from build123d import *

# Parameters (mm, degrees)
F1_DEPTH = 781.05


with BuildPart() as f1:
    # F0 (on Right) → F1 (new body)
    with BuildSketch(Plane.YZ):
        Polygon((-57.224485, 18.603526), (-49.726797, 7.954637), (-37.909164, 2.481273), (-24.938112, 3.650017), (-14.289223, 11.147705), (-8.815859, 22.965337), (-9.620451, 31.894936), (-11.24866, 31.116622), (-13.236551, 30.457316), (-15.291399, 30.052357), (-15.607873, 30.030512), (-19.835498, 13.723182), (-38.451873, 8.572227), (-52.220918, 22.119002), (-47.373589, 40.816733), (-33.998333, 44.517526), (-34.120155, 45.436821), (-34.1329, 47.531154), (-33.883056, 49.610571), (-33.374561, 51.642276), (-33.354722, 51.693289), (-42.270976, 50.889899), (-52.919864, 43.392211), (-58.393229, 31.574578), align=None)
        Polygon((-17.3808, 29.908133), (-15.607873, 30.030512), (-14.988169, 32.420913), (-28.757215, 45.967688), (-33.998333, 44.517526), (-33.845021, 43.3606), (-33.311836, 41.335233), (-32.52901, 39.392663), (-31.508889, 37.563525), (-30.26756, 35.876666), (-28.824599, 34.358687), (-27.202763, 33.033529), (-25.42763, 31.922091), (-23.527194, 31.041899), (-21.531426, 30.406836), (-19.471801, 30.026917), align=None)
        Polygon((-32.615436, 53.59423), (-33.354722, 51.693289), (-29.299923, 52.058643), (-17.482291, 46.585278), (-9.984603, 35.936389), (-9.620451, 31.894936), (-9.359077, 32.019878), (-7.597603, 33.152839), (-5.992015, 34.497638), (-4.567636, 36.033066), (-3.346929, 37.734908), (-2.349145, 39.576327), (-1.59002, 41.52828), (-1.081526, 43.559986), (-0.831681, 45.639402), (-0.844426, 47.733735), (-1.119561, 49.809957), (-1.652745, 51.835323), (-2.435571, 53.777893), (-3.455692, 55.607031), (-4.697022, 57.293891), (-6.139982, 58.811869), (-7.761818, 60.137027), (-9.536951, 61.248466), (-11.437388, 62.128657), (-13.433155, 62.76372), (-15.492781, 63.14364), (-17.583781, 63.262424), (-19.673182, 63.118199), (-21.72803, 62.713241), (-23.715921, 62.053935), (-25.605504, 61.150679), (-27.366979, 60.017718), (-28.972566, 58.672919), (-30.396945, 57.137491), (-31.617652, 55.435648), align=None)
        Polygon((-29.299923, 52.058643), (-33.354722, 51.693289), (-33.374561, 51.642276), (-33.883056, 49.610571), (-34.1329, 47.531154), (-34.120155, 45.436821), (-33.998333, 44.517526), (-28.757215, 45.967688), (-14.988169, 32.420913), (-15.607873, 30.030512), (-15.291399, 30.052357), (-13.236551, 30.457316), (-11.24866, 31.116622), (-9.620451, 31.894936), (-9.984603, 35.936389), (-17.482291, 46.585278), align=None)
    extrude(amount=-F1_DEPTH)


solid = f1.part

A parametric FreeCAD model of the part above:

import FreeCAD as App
import Part
import Sketcher
from FreeCAD import Vector
Q = App.Units.Quantity

doc = App.newDocument("Part")
body = doc.addObject("PartDesign::Body", "Body")

sketch1 = doc.addObject("Sketcher::SketchObject", "Sketch")
body.addObject(sketch1)
sketch1.AttachmentSupport = (doc.YZ_Plane, [""])
sketch1.MapMode = "FlatFace"
sketch1.addGeometry([
    Part.LineSegment(Vector(-57.224485, 18.603526, 0), Vector(-49.726797, 7.954637, 0)),
    Part.LineSegment(Vector(-49.726797, 7.954637, 0), Vector(-37.909164, 2.481273, 0)),
    Part.LineSegment(Vector(-37.909164, 2.481273, 0), Vector(-24.938112, 3.650017, 0)),
    Part.LineSegment(Vector(-24.938112, 3.650017, 0), Vector(-14.289223, 11.147705, 0)),
    Part.LineSegment(Vector(-14.289223, 11.147705, 0), Vector(-8.815859, 22.965337, 0)),
    Part.LineSegment(Vector(-8.815859, 22.965337, 0), Vector(-9.620451, 31.894936, 0)),
    Part.LineSegment(Vector(-9.620451, 31.894936, 0), Vector(-9.359077, 32.019878, 0)),
    Part.LineSegment(Vector(-9.359077, 32.019878, 0), Vector(-7.597603, 33.152839, 0)),
    Part.LineSegment(Vector(-7.597603, 33.152839, 0), Vector(-5.992015, 34.497638, 0)),
    Part.LineSegment(Vector(-5.992015, 34.497638, 0), Vector(-4.567636, 36.033066, 0)),
    Part.LineSegment(Vector(-4.567636, 36.033066, 0), Vector(-3.346929, 37.734908, 0)),
    Part.LineSegment(Vector(-3.346929, 37.734908, 0), Vector(-2.349145, 39.576327, 0)),
    Part.LineSegment(Vector(-2.349145, 39.576327, 0), Vector(-1.59002, 41.52828, 0)),
    Part.LineSegment(Vector(-1.59002, 41.52828, 0), Vector(-1.081526, 43.559986, 0)),
    Part.LineSegment(Vector(-1.081526, 43.559986, 0), Vector(-0.831681, 45.639402, 0)),
    Part.LineSegment(Vector(-0.831681, 45.639402, 0), Vector(-0.844426, 47.733735, 0)),
    Part.LineSegment(Vector(-0.844426, 47.733735, 0), Vector(-1.119561, 49.809957, 0)),
    Part.LineSegment(Vector(-1.119561, 49.809957, 0), Vector(-1.652745, 51.835323, 0)),
    Part.LineSegment(Vector(-1.652745, 51.835323, 0), Vector(-2.435571, 53.777893, 0)),
    Part.LineSegment(Vector(-2.435571, 53.777893, 0), Vector(-3.455692, 55.607031, 0)),
    Part.LineSegment(Vector(-3.455692, 55.607031, 0), Vector(-4.697022, 57.293891, 0)),
    Part.LineSegment(Vector(-4.697022, 57.293891, 0), Vector(-6.139982, 58.811869, 0)),
    Part.LineSegment(Vector(-6.139982, 58.811869, 0), Vector(-7.761818, 60.137027, 0)),
    Part.LineSegment(Vector(-7.761818, 60.137027, 0), Vector(-9.536951, 61.248466, 0)),
    Part.LineSegment(Vector(-9.536951, 61.248466, 0), Vector(-11.437388, 62.128657, 0)),
    Part.LineSegment(Vector(-11.437388, 62.128657, 0), Vector(-13.433155, 62.76372, 0)),
    Part.LineSegment(Vector(-13.433155, 62.76372, 0), Vector(-15.492781, 63.14364, 0)),
    Part.LineSegment(Vector(-15.492781, 63.14364, 0), Vector(-17.583781, 63.262424, 0)),
    Part.LineSegment(Vector(-17.583781, 63.262424, 0), Vector(-19.673182, 63.118199, 0)),
    Part.LineSegment(Vector(-19.673182, 63.118199, 0), Vector(-21.72803, 62.713241, 0)),
    Part.LineSegment(Vector(-21.72803, 62.713241, 0), Vector(-23.715921, 62.053935, 0)),
    Part.LineSegment(Vector(-23.715921, 62.053935, 0), Vector(-25.605504, 61.150679, 0)),
    Part.LineSegment(Vector(-25.605504, 61.150679, 0), Vector(-27.366979, 60.017718, 0)),
    Part.LineSegment(Vector(-27.366979, 60.017718, 0), Vector(-28.972566, 58.672919, 0)),
    Part.LineSegment(Vector(-28.972566, 58.672919, 0), Vector(-30.396945, 57.137491, 0)),
    Part.LineSegment(Vector(-30.396945, 57.137491, 0), Vector(-31.617652, 55.435648, 0)),
    Part.LineSegment(Vector(-31.617652, 55.435648, 0), Vector(-32.615436, 53.59423, 0)),
    Part.LineSegment(Vector(-32.615436, 53.59423, 0), Vector(-33.354722, 51.693289, 0)),
    Part.LineSegment(Vector(-33.354722, 51.693289, 0), Vector(-42.270976, 50.889899, 0)),
    Part.LineSegment(Vector(-42.270976, 50.889899, 0), Vector(-52.919864, 43.392211, 0)),
    Part.LineSegment(Vector(-52.919864, 43.392211, 0), Vector(-58.393229, 31.574578, 0)),
    Part.LineSegment(Vector(-58.393229, 31.574578, 0), Vector(-57.224485, 18.603526, 0)),
    Part.LineSegment(Vector(-15.607873, 30.030512, 0), Vector(-19.835498, 13.723182, 0)),
    Part.LineSegment(Vector(-19.835498, 13.723182, 0), Vector(-38.451873, 8.572227, 0)),
    Part.LineSegment(Vector(-38.451873, 8.572227, 0), Vector(-52.220918, 22.119002, 0)),
    Part.LineSegment(Vector(-52.220918, 22.119002, 0), Vector(-47.373589, 40.816733, 0)),
    Part.LineSegment(Vector(-47.373589, 40.816733, 0), Vector(-33.998333, 44.517526, 0)),
    Part.LineSegment(Vector(-33.998333, 44.517526, 0), Vector(-33.845021, 43.3606, 0)),
    Part.LineSegment(Vector(-33.845021, 43.3606, 0), Vector(-33.311836, 41.335233, 0)),
    Part.LineSegment(Vector(-33.311836, 41.335233, 0), Vector(-32.52901, 39.392663, 0)),
    Part.LineSegment(Vector(-32.52901, 39.392663, 0), Vector(-31.508889, 37.563525, 0)),
    Part.LineSegment(Vector(-31.508889, 37.563525, 0), Vector(-30.26756, 35.876666, 0)),
    Part.LineSegment(Vector(-30.26756, 35.876666, 0), Vector(-28.824599, 34.358687, 0)),
    Part.LineSegment(Vector(-28.824599, 34.358687, 0), Vector(-27.202763, 33.033529, 0)),
    Part.LineSegment(Vector(-27.202763, 33.033529, 0), Vector(-25.42763, 31.922091, 0)),
    Part.LineSegment(Vector(-25.42763, 31.922091, 0), Vector(-23.527194, 31.041899, 0)),
    Part.LineSegment(Vector(-23.527194, 31.041899, 0), Vector(-21.531426, 30.406836, 0)),
    Part.LineSegment(Vector(-21.531426, 30.406836, 0), Vector(-19.471801, 30.026917, 0)),
    Part.LineSegment(Vector(-19.471801, 30.026917, 0), Vector(-17.3808, 29.908133, 0)),
    Part.LineSegment(Vector(-17.3808, 29.908133, 0), Vector(-15.607873, 30.030512, 0)),
], False)
sketch1.addConstraint([
    Sketcher.Constraint("Coincident", 0, 2, 1, 1),
    Sketcher.Constraint("Coincident", 1, 2, 2, 1),
    Sketcher.Constraint("Coincident", 2, 2, 3, 1),
    Sketcher.Constraint("Coincident", 3, 2, 4, 1),
    Sketcher.Constraint("Coincident", 4, 2, 5, 1),
    Sketcher.Constraint("Coincident", 5, 2, 6, 1),
    Sketcher.Constraint("Coincident", 6, 2, 7, 1),
    Sketcher.Constraint("Coincident", 7, 2, 8, 1),
    Sketcher.Constraint("Coincident", 8, 2, 9, 1),
    Sketcher.Constraint("Coincident", 9, 2, 10, 1),
    Sketcher.Constraint("Coincident", 10, 2, 11, 1),
    Sketcher.Constraint("Coincident", 11, 2, 12, 1),
    Sketcher.Constraint("Coincident", 12, 2, 13, 1),
    Sketcher.Constraint("Coincident", 13, 2, 14, 1),
    Sketcher.Constraint("Coincident", 14, 2, 15, 1),
    Sketcher.Constraint("Coincident", 15, 2, 16, 1),
    Sketcher.Constraint("Coincident", 16, 2, 17, 1),
    Sketcher.Constraint("Coincident", 17, 2, 18, 1),
    Sketcher.Constraint("Coincident", 18, 2, 19, 1),
    Sketcher.Constraint("Coincident", 19, 2, 20, 1),
    Sketcher.Constraint("Coincident", 20, 2, 21, 1),
    Sketcher.Constraint("Coincident", 21, 2, 22, 1),
    Sketcher.Constraint("Coincident", 22, 2, 23, 1),
    Sketcher.Constraint("Coincident", 23, 2, 24, 1),
    Sketcher.Constraint("Coincident", 24, 2, 25, 1),
    Sketcher.Constraint("Coincident", 25, 2, 26, 1),
    Sketcher.Constraint("Coincident", 26, 2, 27, 1),
    Sketcher.Constraint("Coincident", 27, 2, 28, 1),
    Sketcher.Constraint("Coincident", 28, 2, 29, 1),
    Sketcher.Constraint("Coincident", 29, 2, 30, 1),
    Sketcher.Constraint("Coincident", 30, 2, 31, 1),
    Sketcher.Constraint("Coincident", 31, 2, 32, 1),
    Sketcher.Constraint("Coincident", 32, 2, 33, 1),
    Sketcher.Constraint("Coincident", 33, 2, 34, 1),
    Sketcher.Constraint("Coincident", 34, 2, 35, 1),
    Sketcher.Constraint("Coincident", 35, 2, 36, 1),
    Sketcher.Constraint("Coincident", 36, 2, 37, 1),
    Sketcher.Constraint("Coincident", 37, 2, 38, 1),
    Sketcher.Constraint("Coincident", 38, 2, 39, 1),
    Sketcher.Constraint("Coincident", 39, 2, 40, 1),
    Sketcher.Constraint("Coincident", 40, 2, 41, 1),
    Sketcher.Constraint("Coincident", 41, 2, 0, 1),
    Sketcher.Constraint("Coincident", 42, 2, 43, 1),
    Sketcher.Constraint("Coincident", 43, 2, 44, 1),
    Sketcher.Constraint("Coincident", 44, 2, 45, 1),
    Sketcher.Constraint("Coincident", 45, 2, 46, 1),
    Sketcher.Constraint("Coincident", 46, 2, 47, 1),
    Sketcher.Constraint("Coincident", 47, 2, 48, 1),
    Sketcher.Constraint("Coincident", 48, 2, 49, 1),
    Sketcher.Constraint("Coincident", 49, 2, 50, 1),
    Sketcher.Constraint("Coincident", 50, 2, 51, 1),
    Sketcher.Constraint("Coincident", 51, 2, 52, 1),
    Sketcher.Constraint("Coincident", 52, 2, 53, 1),
    Sketcher.Constraint("Coincident", 53, 2, 54, 1),
    Sketcher.Constraint("Coincident", 54, 2, 55, 1),
    Sketcher.Constraint("Coincident", 55, 2, 56, 1),
    Sketcher.Constraint("Coincident", 56, 2, 57, 1),
    Sketcher.Constraint("Coincident", 57, 2, 58, 1),
    Sketcher.Constraint("Coincident", 58, 2, 59, 1),
    Sketcher.Constraint("Coincident", 59, 2, 42, 1),
    Sketcher.Constraint("DistanceY", 30, 2, 28, 2, Q("0.0419002 in")),
    Sketcher.Constraint("Distance", 0, Q("13.0236 mm")),
    Sketcher.Constraint("Distance", 1, Q("13.0236 mm")),
    Sketcher.Constraint("Distance", 2, Q("13.0236 mm")),
    Sketcher.Constraint("Distance", 3, Q("13.0236 mm")),
    Sketcher.Constraint("Distance", 4, Q("13.023599 mm")),
    Sketcher.Constraint("Distance", 6, Q("0.289701 mm")),
    Sketcher.Constraint("Distance", 39, Q("13.023599 mm")),
    Sketcher.Constraint("Distance", 40, Q("13.023601 mm")),
    Sketcher.Constraint("Distance", 41, Q("13.0236 mm")),
    Sketcher.Constraint("Distance", 46, Q("13.8778 mm")),
    Sketcher.Constraint("DistanceY", -1, 1, 14, 2, Q("45.639402 mm")),
    Sketcher.Constraint("DistanceY", -1, 1, 28, 2, Q("63.118199 mm")),
    Sketcher.Constraint("DistanceY", -1, 1, 38, 2, Q("50.889899 mm")),
    Sketcher.Constraint("DistanceX", 42, 2, -1, 1, Q("19.835498 mm")),
    Sketcher.Constraint("DistanceY", -1, 1, 44, 2, Q("22.119002 mm")),
    Sketcher.Constraint("DistanceY", -1, 1, 47, 2, Q("43.3606 mm")),
    Sketcher.Constraint("DistanceX", 52, 2, -1, 1, Q("28.824599 mm")),
    Sketcher.Constraint("DistanceY", -1, 1, 55, 2, Q("31.041899 mm")),
    Sketcher.Constraint("DistanceX", 57, 2, -1, 1, Q("19.471801 mm")),
    Sketcher.Constraint("DistanceX", 58, 2, -1, 1, Q("17.3808 mm")),
    Sketcher.Constraint("DistanceY", 0, 2, 4, 2, Q("15.0107 mm")),
    Sketcher.Constraint("DistanceY", 4, 2, 5, 2, Q("8.929599 mm")),
    Sketcher.Constraint("DistanceY", 4, 2, 7, 2, Q("10.187502 mm")),
    Sketcher.Constraint("DistanceY", 7, 2, 8, 2, Q("1.344799 mm")),
    Sketcher.Constraint("DistanceX", 13, 2, 15, 2, Q("0.2371 mm")),
    Sketcher.Constraint("DistanceY", 18, 2, 20, 2, Q("3.515998 mm")),
    Sketcher.Constraint("DistanceX", 26, 2, 21, 2, Q("9.352799 mm")),
    Sketcher.Constraint("DistanceX", 27, 2, 26, 2, Q("2.091 mm")),
    Sketcher.Constraint("DistanceX", 28, 2, 27, 2, Q("2.089401 mm")),
    Sketcher.Constraint("DistanceY", 29, 2, 26, 2, Q("0.430399 mm")),
    Sketcher.Constraint("DistanceX", 32, 2, 27, 2, Q("9.783198 mm")),
    Sketcher.Constraint("DistanceY", 33, 2, 32, 2, Q("1.344799 mm")),
    Sketcher.Constraint("DistanceY", 37, 2, 34, 2, Q("5.444202 mm")),
    Sketcher.Constraint("DistanceY", 43, 2, 41, 2, Q("10.031299 mm")),
    Sketcher.Constraint("DistanceX", 47, 2, 37, 2, Q("0.490299 mm")),
    Sketcher.Constraint("DistanceX", 48, 2, 36, 2, Q("0.6964 mm")),
    Sketcher.Constraint("DistanceY", 50, 2, 46, 2, Q("6.954001 mm")),
    Sketcher.Constraint("Distance", 7, Q("2.094371 mm")),
    Sketcher.Constraint("Distance", 10, Q("2.094371 mm")),
    Sketcher.Constraint("Distance", 12, Q("2.094371 mm")),
    Sketcher.Constraint("Distance", 14, Q("2.094372 mm")),
    Sketcher.Constraint("Distance", 15, Q("2.094372 mm")),
    Sketcher.Constraint("Distance", 17, Q("2.094372 mm")),
    Sketcher.Constraint("Distance", 19, Q("2.094372 mm")),
    Sketcher.Constraint("Distance", 21, Q("2.094371 mm")),
    Sketcher.Constraint("Distance", 23, Q("2.094372 mm")),
    Sketcher.Constraint("Distance", 25, Q("2.094371 mm")),
    Sketcher.Constraint("Distance", 27, Q("2.094371 mm")),
    Sketcher.Constraint("Distance", 29, Q("2.094371 mm")),
    Sketcher.Constraint("Distance", 33, Q("2.094372 mm")),
    Sketcher.Constraint("Distance", 36, Q("2.094372 mm")),
    Sketcher.Constraint("Distance", 42, Q("16.846419 mm")),
    Sketcher.Constraint("Distance", 44, Q("19.315841 mm")),
    Sketcher.Constraint("Distance", 45, Q("19.315842 mm")),
    Sketcher.Constraint("Distance", 47, Q("1.16704 mm")),
    Sketcher.Constraint("Distance", 50, Q("2.094372 mm")),
    Sketcher.Constraint("Distance", 51, Q("2.094371 mm")),
    Sketcher.Constraint("Distance", 54, Q("2.094371 mm")),
    Sketcher.Constraint("Distance", 57, Q("2.094372 mm")),
    Sketcher.Constraint("DistanceX", 2, 2, -1, 1, Q("24.938112 mm")),
    Sketcher.Constraint("DistanceX", 4, 2, -1, 1, Q("8.815859 mm")),
    Sketcher.Constraint("DistanceX", 5, 2, -1, 1, Q("9.620451 mm")),
    Sketcher.Constraint("DistanceY", -1, 1, 7, 2, Q("33.152839 mm")),
    Sketcher.Constraint("DistanceX", 10, 2, -1, 1, Q("3.346929 mm")),
    Sketcher.Constraint("DistanceX", 12, 2, -1, 1, Q("1.59002 mm")),
    Sketcher.Constraint("DistanceY", -1, 1, 12, 2, Q("41.52828 mm")),
    Sketcher.Constraint("DistanceX", 14, 2, -1, 1, Q("0.831681 mm")),
    Sketcher.Constraint("DistanceX", 16, 2, -1, 1, Q("1.119561 mm")),
    Sketcher.Constraint("DistanceX", 18, 2, -1, 1, Q("2.435571 mm")),
    Sketcher.Constraint("DistanceX", 19, 2, -1, 1, Q("3.455692 mm")),
    Sketcher.Constraint("DistanceY", -1, 1, 19, 2, Q("55.607031 mm")),
    Sketcher.Constraint("DistanceX", 20, 2, -1, 1, Q("4.697022 mm")),
    Sketcher.Constraint("DistanceX", 21, 2, -1, 1, Q("6.139982 mm")),
    Sketcher.Constraint("DistanceX", 23, 2, -1, 1, Q("9.536951 mm")),
    Sketcher.Constraint("DistanceY", -1, 1, 25, 2, Q("62.76372 mm")),
    Sketcher.Constraint("DistanceY", -1, 1, 26, 2, Q("63.14364 mm")),
    Sketcher.Constraint("DistanceX", 30, 2, -1, 1, Q("23.715921 mm")),
    Sketcher.Constraint("DistanceY", -1, 1, 31, 2, Q("61.150679 mm")),
    Sketcher.Constraint("DistanceY", -1, 1, 32, 2, Q("60.017718 mm")),
    Sketcher.Constraint("DistanceY", -1, 1, 34, 2, Q("57.137491 mm")),
    Sketcher.Constraint("DistanceX", 35, 2, -1, 1, Q("31.617652 mm")),
    Sketcher.Constraint("DistanceY", -1, 1, 36, 2, Q("53.59423 mm")),
    Sketcher.Constraint("DistanceY", -1, 1, 39, 2, Q("43.392211 mm")),
    Sketcher.Constraint("DistanceX", 40, 2, -1, 1, Q("58.393229 mm")),
    Sketcher.Constraint("DistanceX", 45, 2, -1, 1, Q("47.373589 mm")),
    Sketcher.Constraint("DistanceX", 47, 2, -1, 1, Q("33.845021 mm")),
    Sketcher.Constraint("DistanceX", 49, 2, -1, 1, Q("32.52901 mm")),
    Sketcher.Constraint("DistanceX", 50, 2, -1, 1, Q("31.508889 mm")),
    Sketcher.Constraint("DistanceX", 51, 2, -1, 1, Q("30.26756 mm")),
    Sketcher.Constraint("DistanceY", -1, 1, 53, 2, Q("33.033529 mm")),
    Sketcher.Constraint("DistanceX", 54, 2, -1, 1, Q("25.42763 mm")),
    Sketcher.Constraint("DistanceY", -1, 1, 54, 2, Q("31.922091 mm")),
    Sketcher.Constraint("DistanceX", 1, 2, 2, 2, Q("12.971052 mm")),
    Sketcher.Constraint("DistanceY", 2, 2, 0, 2, Q("4.30462 mm")),
    Sketcher.Constraint("DistanceY", 5, 2, 6, 2, Q("0.124942 mm")),
    Sketcher.Constraint("DistanceX", 6, 2, 8, 2, Q("3.367062 mm")),
    Sketcher.Constraint("DistanceX", 8, 2, 9, 2, Q("1.424379 mm")),
    Sketcher.Constraint("DistanceY", 5, 2, 9, 2, Q("4.13813 mm")),
    Sketcher.Constraint("DistanceY", 10, 2, 11, 2, Q("1.841419 mm")),
    Sketcher.Constraint("DistanceX", 11, 2, 13, 2, Q("1.267619 mm")),
    Sketcher.Constraint("DistanceY", 15, 2, 16, 2, Q("2.076222 mm")),
    Sketcher.Constraint("DistanceX", 17, 2, 15, 2, Q("0.808319 mm")),
    Sketcher.Constraint("DistanceY", 21, 2, 22, 2, Q("1.325158 mm")),
    Sketcher.Constraint("DistanceY", 22, 2, 23, 2, Q("1.111439 mm")),
    Sketcher.Constraint("DistanceY", 23, 2, 24, 2, Q("0.880191 mm")),
    Sketcher.Constraint("DistanceX", 24, 2, 22, 2, Q("3.67557 mm")),
    Sketcher.Constraint("DistanceX", 31, 2, 28, 2, Q("5.932322 mm")),
    Sketcher.Constraint("DistanceX", 34, 2, 33, 2, Q("1.424379 mm")),
    Sketcher.Constraint("DistanceY", 35, 2, 33, 2, Q("3.237271 mm")),
    Sketcher.Constraint("DistanceX", 38, 2, 36, 2, Q("9.65554 mm")),
    Sketcher.Constraint("DistanceX", 43, 2, 1, 2, Q("0.542709 mm")),
    Sketcher.Constraint("DistanceY", 49, 2, 48, 2, Q("1.94257 mm")),
    Sketcher.Constraint("DistanceY", 52, 2, 51, 2, Q("1.517979 mm")),
    Sketcher.Constraint("DistanceX", 53, 2, 55, 2, Q("3.675569 mm")),
    Sketcher.Constraint("DistanceX", 55, 2, 56, 2, Q("1.995768 mm")),
    Sketcher.Constraint("DistanceY", 56, 2, 52, 2, Q("3.951851 mm")),
    Sketcher.Constraint("DistanceY", 58, 2, 54, 2, Q("2.013958 mm")),
    Sketcher.Constraint("DistanceY", 58, 2, 59, 2, Q("0.122379 mm")),
    Sketcher.Constraint("Distance", 43, Q("19.315842 mm")),
])
pad1 = doc.addObject("PartDesign::Pad", "Pad")
body.addObject(pad1)
pad1.Profile = sketch1
pad1.Length = Q("30.75 in")
pad1.Reversed = True

doc.recompute()
